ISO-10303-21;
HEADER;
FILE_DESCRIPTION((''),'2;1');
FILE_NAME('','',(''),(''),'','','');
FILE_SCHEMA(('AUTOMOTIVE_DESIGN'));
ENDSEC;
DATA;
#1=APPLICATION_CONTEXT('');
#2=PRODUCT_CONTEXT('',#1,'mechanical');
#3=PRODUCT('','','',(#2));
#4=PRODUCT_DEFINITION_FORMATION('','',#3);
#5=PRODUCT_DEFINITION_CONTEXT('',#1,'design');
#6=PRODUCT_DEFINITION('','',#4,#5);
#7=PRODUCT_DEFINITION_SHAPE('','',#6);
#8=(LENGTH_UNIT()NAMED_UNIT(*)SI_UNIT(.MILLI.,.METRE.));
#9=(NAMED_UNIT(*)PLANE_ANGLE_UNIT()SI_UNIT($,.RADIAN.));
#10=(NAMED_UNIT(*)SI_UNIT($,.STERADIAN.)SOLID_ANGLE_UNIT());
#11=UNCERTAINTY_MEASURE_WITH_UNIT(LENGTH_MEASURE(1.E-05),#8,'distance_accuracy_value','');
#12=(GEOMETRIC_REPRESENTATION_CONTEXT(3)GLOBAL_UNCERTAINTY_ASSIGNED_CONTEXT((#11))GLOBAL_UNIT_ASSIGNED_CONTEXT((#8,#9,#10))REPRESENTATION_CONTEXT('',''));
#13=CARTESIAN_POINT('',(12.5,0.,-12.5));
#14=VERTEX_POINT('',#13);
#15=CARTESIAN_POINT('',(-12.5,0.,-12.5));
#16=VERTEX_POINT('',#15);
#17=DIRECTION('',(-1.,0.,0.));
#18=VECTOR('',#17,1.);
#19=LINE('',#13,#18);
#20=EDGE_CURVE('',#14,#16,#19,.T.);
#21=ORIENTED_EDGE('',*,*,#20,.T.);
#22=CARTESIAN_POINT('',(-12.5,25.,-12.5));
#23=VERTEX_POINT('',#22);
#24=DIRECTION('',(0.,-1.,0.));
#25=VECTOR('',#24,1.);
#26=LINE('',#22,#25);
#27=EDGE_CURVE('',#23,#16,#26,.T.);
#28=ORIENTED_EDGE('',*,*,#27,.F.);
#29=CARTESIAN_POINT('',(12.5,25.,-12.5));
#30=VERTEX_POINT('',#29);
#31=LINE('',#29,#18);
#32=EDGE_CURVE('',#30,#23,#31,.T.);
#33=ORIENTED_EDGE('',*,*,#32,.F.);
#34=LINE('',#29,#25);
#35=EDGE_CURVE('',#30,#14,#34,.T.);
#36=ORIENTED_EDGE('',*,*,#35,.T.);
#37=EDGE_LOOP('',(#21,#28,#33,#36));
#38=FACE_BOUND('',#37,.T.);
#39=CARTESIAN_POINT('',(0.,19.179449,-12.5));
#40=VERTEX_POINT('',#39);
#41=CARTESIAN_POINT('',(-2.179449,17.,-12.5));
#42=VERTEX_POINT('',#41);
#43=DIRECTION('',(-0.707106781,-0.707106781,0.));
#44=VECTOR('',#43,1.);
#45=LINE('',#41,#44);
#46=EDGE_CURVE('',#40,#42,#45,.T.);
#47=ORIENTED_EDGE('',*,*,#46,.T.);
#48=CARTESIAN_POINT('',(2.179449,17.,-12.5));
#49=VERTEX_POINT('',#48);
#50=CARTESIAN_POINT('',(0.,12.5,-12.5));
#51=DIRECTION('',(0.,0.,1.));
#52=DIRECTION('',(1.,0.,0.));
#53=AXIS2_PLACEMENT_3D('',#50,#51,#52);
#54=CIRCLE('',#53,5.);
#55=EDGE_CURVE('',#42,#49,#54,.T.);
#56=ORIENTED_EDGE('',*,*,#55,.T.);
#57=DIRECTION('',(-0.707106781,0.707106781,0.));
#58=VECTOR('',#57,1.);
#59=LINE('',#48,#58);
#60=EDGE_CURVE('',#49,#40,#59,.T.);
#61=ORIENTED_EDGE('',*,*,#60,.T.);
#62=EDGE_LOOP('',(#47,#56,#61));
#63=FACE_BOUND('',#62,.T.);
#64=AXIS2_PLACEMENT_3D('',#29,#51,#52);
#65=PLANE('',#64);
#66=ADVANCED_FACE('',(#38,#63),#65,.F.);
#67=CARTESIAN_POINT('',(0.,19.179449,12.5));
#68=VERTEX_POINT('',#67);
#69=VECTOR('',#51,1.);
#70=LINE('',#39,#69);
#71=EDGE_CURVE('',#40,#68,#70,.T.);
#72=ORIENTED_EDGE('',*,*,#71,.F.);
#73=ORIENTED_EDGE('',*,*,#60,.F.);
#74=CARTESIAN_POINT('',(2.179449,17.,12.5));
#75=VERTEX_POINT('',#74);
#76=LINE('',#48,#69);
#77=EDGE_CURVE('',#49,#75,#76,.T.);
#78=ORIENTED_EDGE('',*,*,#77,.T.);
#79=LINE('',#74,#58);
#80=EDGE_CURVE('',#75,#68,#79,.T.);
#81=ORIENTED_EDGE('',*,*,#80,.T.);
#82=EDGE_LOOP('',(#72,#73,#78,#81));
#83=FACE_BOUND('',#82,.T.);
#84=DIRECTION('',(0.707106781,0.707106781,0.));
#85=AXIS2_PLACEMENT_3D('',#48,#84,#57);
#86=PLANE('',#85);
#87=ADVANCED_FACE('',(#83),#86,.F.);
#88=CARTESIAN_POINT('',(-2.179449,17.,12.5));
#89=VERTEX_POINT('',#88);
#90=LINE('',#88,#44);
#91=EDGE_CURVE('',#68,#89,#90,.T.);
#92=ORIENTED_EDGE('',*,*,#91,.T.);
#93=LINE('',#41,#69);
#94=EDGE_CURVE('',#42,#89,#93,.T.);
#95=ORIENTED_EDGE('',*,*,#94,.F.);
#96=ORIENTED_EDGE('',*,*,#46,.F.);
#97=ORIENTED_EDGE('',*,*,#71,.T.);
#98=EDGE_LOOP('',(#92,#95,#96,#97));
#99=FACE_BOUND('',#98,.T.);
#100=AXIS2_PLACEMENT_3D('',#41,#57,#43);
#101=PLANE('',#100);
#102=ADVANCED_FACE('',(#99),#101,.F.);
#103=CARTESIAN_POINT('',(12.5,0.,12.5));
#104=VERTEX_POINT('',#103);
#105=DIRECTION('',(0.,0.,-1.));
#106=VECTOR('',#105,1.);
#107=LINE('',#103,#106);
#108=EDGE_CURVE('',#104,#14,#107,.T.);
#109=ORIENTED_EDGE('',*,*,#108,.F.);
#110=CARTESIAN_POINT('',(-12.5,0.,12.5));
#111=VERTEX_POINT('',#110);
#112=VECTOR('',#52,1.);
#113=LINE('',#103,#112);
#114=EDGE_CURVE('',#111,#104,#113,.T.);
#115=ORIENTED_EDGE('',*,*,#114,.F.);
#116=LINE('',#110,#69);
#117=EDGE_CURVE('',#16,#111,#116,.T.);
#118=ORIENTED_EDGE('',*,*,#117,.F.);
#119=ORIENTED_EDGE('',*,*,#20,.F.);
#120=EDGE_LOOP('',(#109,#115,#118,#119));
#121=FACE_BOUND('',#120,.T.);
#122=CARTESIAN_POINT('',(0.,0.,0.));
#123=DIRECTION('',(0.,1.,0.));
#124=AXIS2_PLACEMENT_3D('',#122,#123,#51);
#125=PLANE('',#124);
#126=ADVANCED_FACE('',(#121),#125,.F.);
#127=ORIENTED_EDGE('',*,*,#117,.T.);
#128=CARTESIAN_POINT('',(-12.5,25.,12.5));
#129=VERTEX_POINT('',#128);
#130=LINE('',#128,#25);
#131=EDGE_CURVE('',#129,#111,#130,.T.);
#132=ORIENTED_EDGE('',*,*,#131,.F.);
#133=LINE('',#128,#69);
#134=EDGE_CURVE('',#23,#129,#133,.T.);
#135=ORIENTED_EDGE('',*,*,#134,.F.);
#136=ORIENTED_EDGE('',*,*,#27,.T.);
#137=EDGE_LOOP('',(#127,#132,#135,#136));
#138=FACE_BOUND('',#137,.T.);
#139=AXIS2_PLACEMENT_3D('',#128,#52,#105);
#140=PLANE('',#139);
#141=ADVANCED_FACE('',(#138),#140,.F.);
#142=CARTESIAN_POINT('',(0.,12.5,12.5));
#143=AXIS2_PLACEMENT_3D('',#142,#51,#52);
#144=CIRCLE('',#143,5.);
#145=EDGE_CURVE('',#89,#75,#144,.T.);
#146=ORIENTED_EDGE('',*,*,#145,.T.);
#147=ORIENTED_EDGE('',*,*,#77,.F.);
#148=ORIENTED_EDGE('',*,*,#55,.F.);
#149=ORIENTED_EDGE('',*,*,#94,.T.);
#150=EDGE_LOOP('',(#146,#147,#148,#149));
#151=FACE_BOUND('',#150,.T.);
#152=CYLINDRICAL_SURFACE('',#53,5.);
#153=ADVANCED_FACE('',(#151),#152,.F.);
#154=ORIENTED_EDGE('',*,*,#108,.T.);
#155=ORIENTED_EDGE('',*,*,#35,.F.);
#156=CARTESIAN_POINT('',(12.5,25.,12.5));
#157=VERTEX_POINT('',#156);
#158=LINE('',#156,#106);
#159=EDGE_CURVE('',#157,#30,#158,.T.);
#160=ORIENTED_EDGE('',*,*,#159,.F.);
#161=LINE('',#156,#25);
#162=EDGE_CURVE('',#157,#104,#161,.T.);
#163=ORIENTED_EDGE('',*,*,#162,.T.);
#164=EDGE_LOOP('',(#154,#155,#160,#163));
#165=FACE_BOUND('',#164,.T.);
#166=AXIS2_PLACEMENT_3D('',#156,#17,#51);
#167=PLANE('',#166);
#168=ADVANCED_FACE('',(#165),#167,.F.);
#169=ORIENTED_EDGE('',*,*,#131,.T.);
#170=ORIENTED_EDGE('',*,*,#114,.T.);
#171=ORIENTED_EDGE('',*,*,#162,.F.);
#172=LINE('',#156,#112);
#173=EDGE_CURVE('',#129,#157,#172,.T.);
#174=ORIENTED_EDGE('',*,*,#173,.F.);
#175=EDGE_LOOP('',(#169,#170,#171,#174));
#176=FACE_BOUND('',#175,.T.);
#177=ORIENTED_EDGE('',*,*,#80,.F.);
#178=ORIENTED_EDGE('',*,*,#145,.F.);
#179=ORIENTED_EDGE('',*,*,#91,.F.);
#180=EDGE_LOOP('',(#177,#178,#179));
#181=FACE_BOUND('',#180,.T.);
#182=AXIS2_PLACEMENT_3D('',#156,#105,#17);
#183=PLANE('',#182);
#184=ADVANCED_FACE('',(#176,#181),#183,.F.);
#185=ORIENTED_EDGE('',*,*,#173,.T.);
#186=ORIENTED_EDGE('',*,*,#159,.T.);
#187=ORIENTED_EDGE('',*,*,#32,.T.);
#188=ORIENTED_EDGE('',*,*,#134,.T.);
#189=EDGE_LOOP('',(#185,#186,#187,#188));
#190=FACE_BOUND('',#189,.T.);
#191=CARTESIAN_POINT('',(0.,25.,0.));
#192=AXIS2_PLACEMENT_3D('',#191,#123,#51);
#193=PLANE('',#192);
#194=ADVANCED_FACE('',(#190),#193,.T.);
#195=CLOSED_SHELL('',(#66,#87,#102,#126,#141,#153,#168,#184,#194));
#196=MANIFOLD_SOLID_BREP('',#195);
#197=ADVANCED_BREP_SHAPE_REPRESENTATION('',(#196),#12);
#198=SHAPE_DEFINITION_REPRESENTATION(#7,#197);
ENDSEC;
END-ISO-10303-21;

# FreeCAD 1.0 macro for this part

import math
import FreeCAD as App
import Part
import Sketcher

V = App.Vector
Q = App.Units.Quantity

doc = App.newDocument("Part")
body = doc.addObject("PartDesign::Body", "Body")

# Sketch on XZ plane
sketch1 = doc.addObject("Sketcher::SketchObject", "Sketch")
body.addObject(sketch1)
sketch1.AttachmentSupport = (doc.XZ_Plane, [""])
sketch1.MapMode = "FlatFace"
sketch1.addGeometry([
    Part.LineSegment(V(-12, -12, 0), V(-12, 12, 0)),
    Part.LineSegment(V(-12, 12, 0), V(12, 12, 0)),
    Part.LineSegment(V(12, 12, 0), V(12, -12, 0)),
    Part.LineSegment(V(12, -12, 0), V(-12, -12, 0)),
], False)
sketch1.addConstraint([
    Sketcher.Constraint("Coincident", 0, 2, 1, 1),
    Sketcher.Constraint("Coincident", 1, 2, 2, 1),
    Sketcher.Constraint("Coincident", 2, 2, 3, 1),
    Sketcher.Constraint("Coincident", 3, 2, 0, 1),
    Sketcher.Constraint("Vertical", 0),
    Sketcher.Constraint("Horizontal", 1),
    Sketcher.Constraint("Vertical", 2),
    Sketcher.Constraint("Horizontal", 3),
    Sketcher.Constraint("Symmetric", 0, 2, 2, 2, -1, 1),
    Sketcher.Constraint("Equal", 3, 0),
    Sketcher.Constraint("DistanceX", 1, 1, 1, 2, Q("25 mm")),
])
pad1 = doc.addObject("PartDesign::Pad", "Pad")
body.addObject(pad1)
pad1.Profile = sketch1
pad1.Length = 25
pad1.Reversed = True

# Sketch on XY plane
sketch2 = doc.addObject("Sketcher::SketchObject", "Sketch001")
body.addObject(sketch2)
sketch2.AttachmentSupport = (doc.XY_Plane, [""])
sketch2.MapMode = "FlatFace"
sketch2.AttachmentOffset = App.Placement(V(0, 0, 12.5), App.Rotation())
sketch2.addGeometry([
    Part.LineSegment(V(0, 19.2, 0), V(-2.2, 17, 0)),
    Part.ArcOfCircle(Part.Circle(V(0, 12.5, 0), V(0, 0, 1), 5), math.radians(116), math.radians(424)),
    Part.LineSegment(V(2.2, 17, 0), V(0, 19.2, 0)),
], False)
sketch2.addConstraint([
    Sketcher.Constraint("Coincident", 0, 2, 1, 1),
    Sketcher.Constraint("Coincident", 1, 2, 2, 1),
    Sketcher.Constraint("Coincident", 2, 2, 0, 1),
    Sketcher.Constraint("Symmetric", 0, 2, 1, 2, -2),
    Sketcher.Constraint("PointOnObject", 2, 2, -2),
    Sketcher.Constraint("Perpendicular", 0, 2),
    Sketcher.Constraint("Radius", 1, Q("5 mm")),
    Sketcher.Constraint("DistanceY", -1, 1, 0, 2, Q("17 mm")),
    Sketcher.Constraint("DistanceY", -1, 1, 1, 3, Q("12.5 mm")),
])
pocket1 = doc.addObject("PartDesign::Pocket", "Pocket")
body.addObject(pocket1)
pocket1.Profile = sketch2
pocket1.Type = "ThroughAll"

doc.recompute()
